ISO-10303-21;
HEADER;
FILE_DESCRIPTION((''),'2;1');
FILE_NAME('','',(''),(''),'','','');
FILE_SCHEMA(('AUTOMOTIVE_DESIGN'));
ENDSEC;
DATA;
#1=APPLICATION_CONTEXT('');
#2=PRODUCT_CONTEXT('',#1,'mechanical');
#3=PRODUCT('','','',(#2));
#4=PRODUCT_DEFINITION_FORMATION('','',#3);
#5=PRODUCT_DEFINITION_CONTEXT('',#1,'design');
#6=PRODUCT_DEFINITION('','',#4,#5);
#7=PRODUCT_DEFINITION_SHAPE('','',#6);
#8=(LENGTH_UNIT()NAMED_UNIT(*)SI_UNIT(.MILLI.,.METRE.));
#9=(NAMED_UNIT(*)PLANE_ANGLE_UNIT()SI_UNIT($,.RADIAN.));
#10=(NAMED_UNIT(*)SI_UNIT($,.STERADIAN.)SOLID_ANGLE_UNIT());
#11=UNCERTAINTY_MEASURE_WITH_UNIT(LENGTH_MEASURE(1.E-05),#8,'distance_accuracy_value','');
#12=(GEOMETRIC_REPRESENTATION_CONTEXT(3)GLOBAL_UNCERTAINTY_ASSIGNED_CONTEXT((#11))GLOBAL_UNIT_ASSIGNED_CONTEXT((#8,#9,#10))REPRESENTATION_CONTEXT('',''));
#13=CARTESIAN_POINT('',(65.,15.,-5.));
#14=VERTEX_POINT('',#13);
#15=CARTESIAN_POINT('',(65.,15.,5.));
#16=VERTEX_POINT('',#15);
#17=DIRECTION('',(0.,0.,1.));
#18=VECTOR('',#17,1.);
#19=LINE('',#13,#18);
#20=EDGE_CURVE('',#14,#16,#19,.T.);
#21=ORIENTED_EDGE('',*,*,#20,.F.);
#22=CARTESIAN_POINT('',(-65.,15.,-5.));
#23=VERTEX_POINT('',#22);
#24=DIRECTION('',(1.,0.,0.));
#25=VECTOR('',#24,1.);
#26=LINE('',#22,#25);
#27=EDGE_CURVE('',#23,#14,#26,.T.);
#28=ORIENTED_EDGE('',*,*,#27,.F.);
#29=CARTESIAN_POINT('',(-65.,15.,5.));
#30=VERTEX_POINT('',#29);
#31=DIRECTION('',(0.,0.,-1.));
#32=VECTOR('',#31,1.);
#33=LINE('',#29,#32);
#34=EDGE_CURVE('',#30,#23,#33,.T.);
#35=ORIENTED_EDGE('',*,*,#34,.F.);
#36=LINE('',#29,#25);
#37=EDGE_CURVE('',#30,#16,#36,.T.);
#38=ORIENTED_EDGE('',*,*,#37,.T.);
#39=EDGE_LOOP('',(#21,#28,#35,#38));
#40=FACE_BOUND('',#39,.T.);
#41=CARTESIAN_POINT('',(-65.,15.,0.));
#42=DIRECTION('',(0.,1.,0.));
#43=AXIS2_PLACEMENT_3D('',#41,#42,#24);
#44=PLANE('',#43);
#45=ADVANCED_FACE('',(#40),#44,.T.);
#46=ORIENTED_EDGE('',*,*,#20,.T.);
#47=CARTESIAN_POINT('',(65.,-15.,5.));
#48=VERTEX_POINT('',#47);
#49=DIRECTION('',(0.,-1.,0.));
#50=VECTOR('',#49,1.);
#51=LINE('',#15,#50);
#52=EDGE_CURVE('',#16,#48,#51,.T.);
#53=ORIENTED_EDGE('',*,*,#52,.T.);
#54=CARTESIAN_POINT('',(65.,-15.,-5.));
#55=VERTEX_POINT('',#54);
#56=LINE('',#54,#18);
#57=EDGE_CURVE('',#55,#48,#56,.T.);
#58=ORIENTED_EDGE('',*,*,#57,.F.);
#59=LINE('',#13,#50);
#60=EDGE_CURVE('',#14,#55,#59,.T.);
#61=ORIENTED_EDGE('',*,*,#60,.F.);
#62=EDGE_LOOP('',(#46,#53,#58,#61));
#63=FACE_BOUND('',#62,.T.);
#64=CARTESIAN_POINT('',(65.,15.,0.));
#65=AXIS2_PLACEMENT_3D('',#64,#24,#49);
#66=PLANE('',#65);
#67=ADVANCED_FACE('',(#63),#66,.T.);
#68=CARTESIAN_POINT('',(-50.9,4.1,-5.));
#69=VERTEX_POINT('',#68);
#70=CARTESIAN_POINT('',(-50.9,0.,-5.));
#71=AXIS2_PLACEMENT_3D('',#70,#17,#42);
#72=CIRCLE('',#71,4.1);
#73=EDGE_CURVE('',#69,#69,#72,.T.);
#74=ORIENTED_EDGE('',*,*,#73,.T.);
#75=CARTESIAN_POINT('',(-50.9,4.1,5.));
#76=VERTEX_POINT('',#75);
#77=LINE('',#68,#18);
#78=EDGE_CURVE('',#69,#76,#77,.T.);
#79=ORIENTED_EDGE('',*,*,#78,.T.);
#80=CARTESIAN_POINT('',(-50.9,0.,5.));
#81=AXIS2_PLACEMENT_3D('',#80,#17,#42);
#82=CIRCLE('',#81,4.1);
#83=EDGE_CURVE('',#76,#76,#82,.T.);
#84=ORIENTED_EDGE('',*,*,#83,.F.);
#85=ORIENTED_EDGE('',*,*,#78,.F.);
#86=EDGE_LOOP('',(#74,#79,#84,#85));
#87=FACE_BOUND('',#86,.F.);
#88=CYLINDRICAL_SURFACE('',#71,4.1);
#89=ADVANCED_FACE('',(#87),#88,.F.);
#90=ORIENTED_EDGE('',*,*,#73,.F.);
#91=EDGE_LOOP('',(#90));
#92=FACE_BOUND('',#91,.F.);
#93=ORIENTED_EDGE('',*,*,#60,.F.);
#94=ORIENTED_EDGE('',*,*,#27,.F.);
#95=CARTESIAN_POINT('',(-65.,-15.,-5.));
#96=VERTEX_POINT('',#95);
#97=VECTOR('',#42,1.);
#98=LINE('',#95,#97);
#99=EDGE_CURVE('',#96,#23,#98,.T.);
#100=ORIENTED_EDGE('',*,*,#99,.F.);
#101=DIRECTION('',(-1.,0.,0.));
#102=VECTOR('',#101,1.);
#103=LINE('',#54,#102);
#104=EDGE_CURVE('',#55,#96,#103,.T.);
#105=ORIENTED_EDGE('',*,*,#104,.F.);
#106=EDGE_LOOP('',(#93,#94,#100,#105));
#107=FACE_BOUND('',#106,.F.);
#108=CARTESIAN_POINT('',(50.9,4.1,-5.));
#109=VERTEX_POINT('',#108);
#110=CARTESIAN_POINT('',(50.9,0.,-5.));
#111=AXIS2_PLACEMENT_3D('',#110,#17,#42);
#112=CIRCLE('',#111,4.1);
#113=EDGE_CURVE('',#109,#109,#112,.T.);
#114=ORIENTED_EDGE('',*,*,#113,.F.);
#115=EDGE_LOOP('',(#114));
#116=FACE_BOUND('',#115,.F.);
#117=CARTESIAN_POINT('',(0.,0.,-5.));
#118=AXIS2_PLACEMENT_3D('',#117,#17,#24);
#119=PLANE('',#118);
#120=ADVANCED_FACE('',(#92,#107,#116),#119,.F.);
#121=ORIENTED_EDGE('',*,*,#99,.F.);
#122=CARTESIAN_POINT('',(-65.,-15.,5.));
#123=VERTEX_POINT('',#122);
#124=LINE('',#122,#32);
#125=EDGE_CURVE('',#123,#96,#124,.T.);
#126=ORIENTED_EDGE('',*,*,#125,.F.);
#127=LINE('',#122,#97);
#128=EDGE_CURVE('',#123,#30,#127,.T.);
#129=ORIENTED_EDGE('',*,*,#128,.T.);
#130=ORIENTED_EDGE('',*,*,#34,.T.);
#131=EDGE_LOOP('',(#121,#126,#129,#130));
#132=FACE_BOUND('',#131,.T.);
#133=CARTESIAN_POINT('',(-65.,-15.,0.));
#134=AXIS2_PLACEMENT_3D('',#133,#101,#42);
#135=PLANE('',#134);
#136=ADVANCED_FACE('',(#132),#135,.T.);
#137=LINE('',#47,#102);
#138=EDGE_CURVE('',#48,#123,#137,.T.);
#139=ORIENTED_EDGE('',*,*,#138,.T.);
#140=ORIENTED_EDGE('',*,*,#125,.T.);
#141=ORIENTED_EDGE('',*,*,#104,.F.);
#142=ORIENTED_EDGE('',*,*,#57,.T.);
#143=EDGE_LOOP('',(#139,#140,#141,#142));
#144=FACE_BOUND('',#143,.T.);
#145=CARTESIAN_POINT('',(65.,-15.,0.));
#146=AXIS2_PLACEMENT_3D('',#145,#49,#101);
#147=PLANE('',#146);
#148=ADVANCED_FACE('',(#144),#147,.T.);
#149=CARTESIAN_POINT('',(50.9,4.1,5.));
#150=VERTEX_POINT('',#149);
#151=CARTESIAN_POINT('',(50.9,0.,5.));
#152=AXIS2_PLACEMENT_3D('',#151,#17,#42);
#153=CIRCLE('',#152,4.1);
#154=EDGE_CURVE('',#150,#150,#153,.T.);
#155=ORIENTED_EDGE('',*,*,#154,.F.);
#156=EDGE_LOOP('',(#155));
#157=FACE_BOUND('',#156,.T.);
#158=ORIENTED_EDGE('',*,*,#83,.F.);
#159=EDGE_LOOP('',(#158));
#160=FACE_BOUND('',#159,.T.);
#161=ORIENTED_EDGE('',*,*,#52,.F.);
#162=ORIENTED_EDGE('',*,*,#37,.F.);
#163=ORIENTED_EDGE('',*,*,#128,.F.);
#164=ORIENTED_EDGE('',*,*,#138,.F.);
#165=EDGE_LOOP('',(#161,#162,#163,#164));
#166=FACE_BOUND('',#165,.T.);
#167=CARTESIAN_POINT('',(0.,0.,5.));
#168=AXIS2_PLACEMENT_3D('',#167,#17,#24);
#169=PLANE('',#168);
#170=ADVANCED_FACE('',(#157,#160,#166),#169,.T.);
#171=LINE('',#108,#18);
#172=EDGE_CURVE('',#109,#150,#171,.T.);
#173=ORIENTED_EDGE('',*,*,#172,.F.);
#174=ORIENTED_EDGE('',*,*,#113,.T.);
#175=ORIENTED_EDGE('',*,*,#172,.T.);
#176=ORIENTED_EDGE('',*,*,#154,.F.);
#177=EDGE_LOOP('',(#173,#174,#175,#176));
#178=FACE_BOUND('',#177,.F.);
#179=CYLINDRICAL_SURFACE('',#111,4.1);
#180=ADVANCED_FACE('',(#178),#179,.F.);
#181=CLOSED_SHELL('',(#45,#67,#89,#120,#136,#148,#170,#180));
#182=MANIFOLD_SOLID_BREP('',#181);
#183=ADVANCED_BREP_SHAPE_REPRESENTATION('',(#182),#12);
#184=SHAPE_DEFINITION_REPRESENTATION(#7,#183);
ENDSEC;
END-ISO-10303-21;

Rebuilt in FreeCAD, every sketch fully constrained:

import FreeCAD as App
import Part
import Sketcher

V = App.Vector
Q = App.Units.Quantity

doc = App.newDocument("Part")
body = doc.addObject("PartDesign::Body", "Body")

sketch1 = body.newObject("Sketcher::SketchObject", "Sketch")
sketch1.AttachmentSupport = (doc.getObject("XY_Plane"), [""])
sketch1.MapMode = "FlatFace"
sketch1.addGeometry(Part.LineSegment(V(-65, -15, 0), V(65, -15, 0)), False)
sketch1.addGeometry(Part.LineSegment(V(65, -15, 0), V(65, 15, 0)), False)
sketch1.addGeometry(Part.LineSegment(V(65, 15, 0), V(-65, 15, 0)), False)
sketch1.addGeometry(Part.LineSegment(V(-65, 15, 0), V(-65, -15, 0)), False)
sketch1.addConstraint(Sketcher.Constraint("Coincident", 0, 2, 1, 1))
sketch1.addConstraint(Sketcher.Constraint("Coincident", 1, 2, 2, 1))
sketch1.addConstraint(Sketcher.Constraint("Coincident", 2, 2, 3, 1))
sketch1.addConstraint(Sketcher.Constraint("Coincident", 3, 2, 0, 1))
sketch1.addConstraint(Sketcher.Constraint("Horizontal", 0))
sketch1.addConstraint(Sketcher.Constraint("Vertical", 1))
sketch1.addConstraint(Sketcher.Constraint("Horizontal", 2))
sketch1.addConstraint(Sketcher.Constraint("Vertical", 3))
sketch1.addConstraint(Sketcher.Constraint("Symmetric", 0, 2, 2, 2, -1, 1))
sketch1.addConstraint(Sketcher.Constraint("DistanceX", 0, 1, 0, 2, Q("130 mm")))
sketch1.addConstraint(Sketcher.Constraint("DistanceY", 1, 1, 1, 2, Q("30 mm")))
pad1 = body.newObject("PartDesign::Pad", "Pad")
pad1.Profile = sketch1
pad1.Length = 10
pad1.Midplane = True

sketch2 = body.newObject("Sketcher::SketchObject", "Sketch001")
sketch2.AttachmentSupport = (doc.getObject("XY_Plane"), [""])
sketch2.MapMode = "FlatFace"
sketch2.AttachmentOffset = App.Placement(V(0, 0, -5), App.Rotation())
sketch2.addGeometry(Part.Circle(V(50.9, 0, 0), V(0, 0, 1), 4.1), False)
sketch2.addGeometry(Part.Circle(V(-50.9, 0, 0), V(0, 0, 1), 4.1), False)
sketch2.addConstraint(Sketcher.Constraint("Equal", 0, 1))
sketch2.addConstraint(Sketcher.Constraint("Symmetric", 0, 3, 1, 3, -1, 1))
sketch2.addConstraint(Sketcher.Constraint("PointOnObject", 0, 3, -1))
sketch2.addConstraint(Sketcher.Constraint("Diameter", 0, Q("8.2 mm")))
sketch2.addConstraint(Sketcher.Constraint("DistanceX", -1, 1, 0, 3, Q("50.9 mm")))
doc.recompute()
hole = body.newObject("PartDesign::Hole", "Hole")
hole.Profile = sketch2
hole.ThreadType = "None"
hole.Diameter = 8.2
hole.DepthType = "ThroughAll"
hole.Reversed = True

doc.recompute()
